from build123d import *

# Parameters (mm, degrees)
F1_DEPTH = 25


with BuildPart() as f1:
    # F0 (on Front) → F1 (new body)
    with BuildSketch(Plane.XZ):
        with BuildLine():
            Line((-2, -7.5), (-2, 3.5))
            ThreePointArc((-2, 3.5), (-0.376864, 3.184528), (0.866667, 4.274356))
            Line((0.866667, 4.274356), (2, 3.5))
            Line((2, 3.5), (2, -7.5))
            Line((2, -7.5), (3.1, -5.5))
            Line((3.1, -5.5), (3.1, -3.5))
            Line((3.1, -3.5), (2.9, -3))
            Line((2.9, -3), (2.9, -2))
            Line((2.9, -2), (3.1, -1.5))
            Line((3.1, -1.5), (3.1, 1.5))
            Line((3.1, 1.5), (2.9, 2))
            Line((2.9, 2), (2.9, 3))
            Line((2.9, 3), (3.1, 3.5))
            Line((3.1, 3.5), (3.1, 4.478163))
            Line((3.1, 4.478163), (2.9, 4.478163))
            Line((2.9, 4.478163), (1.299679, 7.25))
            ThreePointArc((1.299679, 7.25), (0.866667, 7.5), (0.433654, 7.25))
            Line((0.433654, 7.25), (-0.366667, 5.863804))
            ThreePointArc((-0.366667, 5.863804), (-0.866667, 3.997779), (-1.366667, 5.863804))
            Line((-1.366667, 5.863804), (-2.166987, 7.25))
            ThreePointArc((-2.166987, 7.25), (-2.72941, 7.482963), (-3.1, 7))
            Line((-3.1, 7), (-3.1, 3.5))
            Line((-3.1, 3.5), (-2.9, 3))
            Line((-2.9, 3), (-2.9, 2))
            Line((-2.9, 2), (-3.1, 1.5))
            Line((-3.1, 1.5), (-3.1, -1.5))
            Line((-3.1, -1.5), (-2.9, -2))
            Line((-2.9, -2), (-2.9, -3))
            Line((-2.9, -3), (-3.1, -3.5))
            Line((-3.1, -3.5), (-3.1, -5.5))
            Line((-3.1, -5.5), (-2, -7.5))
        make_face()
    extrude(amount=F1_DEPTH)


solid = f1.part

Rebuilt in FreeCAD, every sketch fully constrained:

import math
import FreeCAD as App
import Part
import Sketcher
from FreeCAD import Vector
Q = App.Units.Quantity

doc = App.newDocument("Part")
body = doc.addObject("PartDesign::Body", "Body")

# Sketch on XZ plane
sketch1 = body.newObject("Sketcher::SketchObject", "Sketch")
sketch1.AttachmentSupport = (doc.getObject("XZ_Plane"), [""])
sketch1.MapMode = "FlatFace"
sketch1.addGeometry([
    Part.LineSegment(Vector(-2, -7.5, 0), Vector(-2, 3.5, 0)),  # 0
    Part.ArcOfCircle(Part.Circle(Vector(-0.866667, 4.997779, 0), Vector(0, 0, 1), 1.87824), math.radians(-127.113907), math.radians(-22.653683)),  # 1
    Part.LineSegment(Vector(0.866667, 4.274356, 0), Vector(2, 3.5, 0)),  # 2
    Part.LineSegment(Vector(2, 3.5, 0), Vector(2, -7.5, 0)),  # 3
    Part.LineSegment(Vector(2, -7.5, 0), Vector(3.1, -5.5, 0)),  # 4
    Part.LineSegment(Vector(3.1, -5.5, 0), Vector(3.1, -3.5, 0)),  # 5
    Part.LineSegment(Vector(3.1, -3.5, 0), Vector(2.9, -3, 0)),  # 6
    Part.LineSegment(Vector(2.9, -3, 0), Vector(2.9, -2, 0)),  # 7
    Part.LineSegment(Vector(2.9, -2, 0), Vector(3.1, -1.5, 0)),  # 8
    Part.LineSegment(Vector(3.1, -1.5, 0), Vector(3.1, 1.5, 0)),  # 9
    Part.LineSegment(Vector(3.1, 1.5, 0), Vector(2.9, 2, 0)),  # 10
    Part.LineSegment(Vector(2.9, 2, 0), Vector(2.9, 3, 0)),  # 11
    Part.LineSegment(Vector(2.9, 3, 0), Vector(3.1, 3.5, 0)),  # 12
    Part.LineSegment(Vector(3.1, 3.5, 0), Vector(3.1, 4.478163, 0)),  # 13
    Part.LineSegment(Vector(3.1, 4.478163, 0), Vector(2.9, 4.478163, 0)),  # 14
    Part.LineSegment(Vector(2.9, 4.478163, 0), Vector(1.299679, 7.25, 0)),  # 15
    Part.ArcOfCircle(Part.Circle(Vector(0.866667, 7, 0), Vector(0, 0, 1), 0.5), math.radians(29.999977), math.radians(150.000023)),  # 16
    Part.LineSegment(Vector(0.433654, 7.25, 0), Vector(-0.366667, 5.863804, 0)),  # 17
    Part.ArcOfCircle(Part.Circle(Vector(-0.866667, 4.997779, 0), Vector(0, 0, 1), 1), math.radians(120.000006), math.radians(419.999994)),  # 18
    Part.LineSegment(Vector(-1.366667, 5.863804, 0), Vector(-2.166987, 7.25, 0)),  # 19
    Part.ArcOfCircle(Part.Circle(Vector(-2.6, 7, 0), Vector(0, 0, 1), 0.5), math.radians(29.999975), math.radians(180.000016)),  # 20
    Part.LineSegment(Vector(-3.1, 7, 0), Vector(-3.1, 3.5, 0)),  # 21
    Part.LineSegment(Vector(-3.1, 3.5, 0), Vector(-2.9, 3, 0)),  # 22
    Part.LineSegment(Vector(-2.9, 3, 0), Vector(-2.9, 2, 0)),  # 23
    Part.LineSegment(Vector(-2.9, 2, 0), Vector(-3.1, 1.5, 0)),  # 24
    Part.LineSegment(Vector(-3.1, 1.5, 0), Vector(-3.1, -1.5, 0)),  # 25
    Part.LineSegment(Vector(-3.1, -1.5, 0), Vector(-2.9, -2, 0)),  # 26
    Part.LineSegment(Vector(-2.9, -2, 0), Vector(-2.9, -3, 0)),  # 27
    Part.LineSegment(Vector(-2.9, -3, 0), Vector(-3.1, -3.5, 0)),  # 28
    Part.LineSegment(Vector(-3.1, -3.5, 0), Vector(-3.1, -5.5, 0)),  # 29
    Part.LineSegment(Vector(-3.1, -5.5, 0), Vector(-2, -7.5, 0)),  # 30
], False)
sketch1.addConstraint([
    Sketcher.Constraint("Coincident", 0, 2, 1, 1),
    Sketcher.Constraint("Coincident", 1, 2, 2, 1),
    Sketcher.Constraint("Coincident", 2, 2, 3, 1),
    Sketcher.Constraint("Coincident", 3, 2, 4, 1),
    Sketcher.Constraint("Coincident", 4, 2, 5, 1),
    Sketcher.Constraint("Coincident", 5, 2, 6, 1),
    Sketcher.Constraint("Coincident", 6, 2, 7, 1),
    Sketcher.Constraint("Coincident", 7, 2, 8, 1),
    Sketcher.Constraint("Coincident", 8, 2, 9, 1),
    Sketcher.Constraint("Coincident", 9, 2, 10, 1),
    Sketcher.Constraint("Coincident", 10, 2, 11, 1),
    Sketcher.Constraint("Coincident", 11, 2, 12, 1),
    Sketcher.Constraint("Coincident", 12, 2, 13, 1),
    Sketcher.Constraint("Coincident", 13, 2, 14, 1),
    Sketcher.Constraint("Coincident", 14, 2, 15, 1),
    Sketcher.Constraint("Tangent", 15, 2, 16, 1),
    Sketcher.Constraint("Tangent", 16, 2, 17, 1),
    Sketcher.Constraint("Coincident", 17, 2, 18, 2),
    Sketcher.Constraint("Coincident", 18, 1, 19, 1),
    Sketcher.Constraint("Tangent", 19, 2, 20, 1),
    Sketcher.Constraint("Tangent", 20, 2, 21, 1),
    Sketcher.Constraint("Coincident", 21, 2, 22, 1),
    Sketcher.Constraint("Coincident", 22, 2, 23, 1),
    Sketcher.Constraint("Coincident", 23, 2, 24, 1),
    Sketcher.Constraint("Coincident", 24, 2, 25, 1),
    Sketcher.Constraint("Coincident", 25, 2, 26, 1),
    Sketcher.Constraint("Coincident", 26, 2, 27, 1),
    Sketcher.Constraint("Coincident", 27, 2, 28, 1),
    Sketcher.Constraint("Coincident", 28, 2, 29, 1),
    Sketcher.Constraint("Coincident", 29, 2, 30, 1),
    Sketcher.Constraint("Coincident", 30, 2, 0, 1),
    Sketcher.Constraint("Vertical", 0),
    Sketcher.Constraint("Vertical", 3),
    Sketcher.Constraint("Vertical", 5),
    Sketcher.Constraint("Vertical", 7),
    Sketcher.Constraint("Vertical", 9),
    Sketcher.Constraint("Vertical", 11),
    Sketcher.Constraint("Vertical", 13),
    Sketcher.Constraint("Horizontal", 14),
    Sketcher.Constraint("Vertical", 21),
    Sketcher.Constraint("Vertical", 23),
    Sketcher.Constraint("Vertical", 25),
    Sketcher.Constraint("Vertical", 27),
    Sketcher.Constraint("Vertical", 29),
    Sketcher.Constraint("Coincident", 18, 3, 1, 3),
    Sketcher.Constraint("Equal", 16, 20),
    Sketcher.Constraint("Symmetric", 5, 2, 21, 2, -1, 1),
    Sketcher.Constraint("Symmetric", 6, 2, 22, 2, -1, 1),
    Sketcher.Constraint("Symmetric", 8, 2, 24, 2, -1, 1),
    Sketcher.Constraint("Symmetric", 10, 2, 26, 2, -1, 1),
    Sketcher.Constraint("Symmetric", 12, 2, 28, 2, -1, 1),
    Sketcher.Constraint("Symmetric", 0, 2, 2, 2, -2),
    Sketcher.Constraint("Symmetric", 12, 2, 21, 2, -2),
    Sketcher.Constraint("Symmetric", 11, 2, 22, 2, -2),
    Sketcher.Constraint("Parallel", 6, 10),
    Sketcher.Constraint("Parallel", 8, 12),
    Sketcher.Constraint("Parallel", 15, 19),
    Sketcher.Constraint("Parallel", 12, 24),
    Sketcher.Constraint("Parallel", 22, 26),
    Sketcher.Constraint("Parallel", 24, 28),
    Sketcher.Constraint("Horizontal", 16, 3, 20, 3),
    Sketcher.Constraint("Horizontal", 2, 2, 12, 2),
    Sketcher.Constraint("Horizontal", 15, 2, 16, 2),
    Sketcher.Constraint("Horizontal", 17, 2, 18, 1),
    Sketcher.Constraint("Horizontal", 10, 2, 23, 2),
    Sketcher.Constraint("Horizontal", 4, 2, 29, 2),
    Sketcher.Constraint("Horizontal", 3, 2, 30, 2),
    Sketcher.Constraint("Vertical", 16, 3, 1, 2),
    Sketcher.Constraint("Vertical", 5, 2, 8, 2),
    Sketcher.Constraint("Vertical", 11, 2, 14, 2),
    Sketcher.Constraint("Radius", 18, 1.0),
    Sketcher.Constraint("Radius", 16, 0.5),
    Sketcher.Constraint("DistanceY", 0, 1, 0, 2, 11.0),
    Sketcher.Constraint("DistanceY", 5, 1, 5, 2, 2.0),
    Sketcher.Constraint("DistanceY", 7, 1, 7, 2, 1.0),
    Sketcher.Constraint("DistanceY", 9, 1, 9, 2, 3.0),
    Sketcher.Constraint("Angle", 15, Q("120.000003 deg")),
    Sketcher.Constraint("DistanceX", 14, 2, 14, 1, 0.2),
    Sketcher.Constraint("DistanceY", 21, 2, 21, 1, 3.5),
    Sketcher.Constraint("DistanceY", -1, 1, 16, 3, 7.0),
    Sketcher.Constraint("DistanceX", 0, 2, -1, 1, 2.0),
    Sketcher.Constraint("DistanceX", 18, 1, 17, 2, 1.0),
    Sketcher.Constraint("DistanceX", 20, 3, -1, 1, 2.6),
    Sketcher.Constraint("Radius", 1, 1.87824),
])
pad1 = body.newObject("PartDesign::Pad", "Pad")
pad1.Profile = sketch1
pad1.Length = 25

doc.recompute()
